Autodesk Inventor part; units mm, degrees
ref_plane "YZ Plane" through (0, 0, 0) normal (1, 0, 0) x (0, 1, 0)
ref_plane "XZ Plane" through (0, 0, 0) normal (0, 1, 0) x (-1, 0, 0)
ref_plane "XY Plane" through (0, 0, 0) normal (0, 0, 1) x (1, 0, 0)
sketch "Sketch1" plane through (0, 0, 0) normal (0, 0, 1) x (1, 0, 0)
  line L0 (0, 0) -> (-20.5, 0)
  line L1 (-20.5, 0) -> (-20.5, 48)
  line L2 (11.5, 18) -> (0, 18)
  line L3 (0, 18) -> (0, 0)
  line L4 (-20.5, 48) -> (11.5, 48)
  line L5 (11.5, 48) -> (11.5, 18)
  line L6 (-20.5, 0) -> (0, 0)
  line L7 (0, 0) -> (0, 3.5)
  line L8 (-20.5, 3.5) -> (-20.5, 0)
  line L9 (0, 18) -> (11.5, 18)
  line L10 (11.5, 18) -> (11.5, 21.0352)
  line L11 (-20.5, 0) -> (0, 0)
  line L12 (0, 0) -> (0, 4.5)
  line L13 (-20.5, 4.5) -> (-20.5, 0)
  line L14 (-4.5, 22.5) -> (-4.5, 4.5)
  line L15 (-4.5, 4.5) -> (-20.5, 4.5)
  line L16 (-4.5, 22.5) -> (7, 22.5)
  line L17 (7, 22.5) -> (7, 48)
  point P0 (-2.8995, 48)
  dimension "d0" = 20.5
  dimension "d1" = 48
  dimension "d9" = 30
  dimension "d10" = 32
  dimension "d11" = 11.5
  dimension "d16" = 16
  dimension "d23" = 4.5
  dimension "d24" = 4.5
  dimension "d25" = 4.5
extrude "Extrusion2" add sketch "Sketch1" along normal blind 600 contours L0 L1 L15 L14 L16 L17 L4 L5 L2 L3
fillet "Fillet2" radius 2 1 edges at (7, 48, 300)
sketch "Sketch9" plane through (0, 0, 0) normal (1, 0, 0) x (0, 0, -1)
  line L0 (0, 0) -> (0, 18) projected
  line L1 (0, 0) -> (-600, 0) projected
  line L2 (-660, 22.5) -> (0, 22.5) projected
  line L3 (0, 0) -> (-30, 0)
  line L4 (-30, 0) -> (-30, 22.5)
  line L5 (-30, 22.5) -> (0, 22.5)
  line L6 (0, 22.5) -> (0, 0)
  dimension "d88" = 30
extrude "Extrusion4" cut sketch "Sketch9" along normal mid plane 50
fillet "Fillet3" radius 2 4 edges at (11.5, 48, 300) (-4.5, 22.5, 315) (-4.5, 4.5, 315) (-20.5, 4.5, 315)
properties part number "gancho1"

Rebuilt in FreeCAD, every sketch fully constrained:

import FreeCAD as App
import Part
import Sketcher


def edges_at(feature, points):
    """Names of the edges that pass closest to the given points."""
    edges = feature.Shape.Edges
    near = lambda p: min(range(len(edges)), key=lambda i: edges[i].distToShape(Part.Vertex(*p))[0])
    return sorted({f"Edge{near(p) + 1}" for p in points})

doc = App.newDocument("Part")
body = doc.addObject("PartDesign::Body", "Body")

# Sketch on XY plane
sketch1 = doc.addObject("Sketcher::SketchObject", "Sketch")
body.addObject(sketch1)
sketch1.AttachmentSupport = (doc.XY_Plane, [""])
sketch1.MapMode = "FlatFace"
sketch1.addGeometry(Part.LineSegment(App.Vector(-20.5, 0, 0), App.Vector(0, 0, 0)), False)
sketch1.addGeometry(Part.LineSegment(App.Vector(0, 0, 0), App.Vector(0, 18, 0)), False)
sketch1.addGeometry(Part.LineSegment(App.Vector(0, 18, 0), App.Vector(11.5, 18, 0)), False)
sketch1.addGeometry(Part.LineSegment(App.Vector(11.5, 18, 0), App.Vector(11.5, 48, 0)), False)
sketch1.addGeometry(Part.LineSegment(App.Vector(11.5, 48, 0), App.Vector(7, 48, 0)), False)
sketch1.addGeometry(Part.LineSegment(App.Vector(7, 48, 0), App.Vector(7, 22.5, 0)), False)
sketch1.addGeometry(Part.LineSegment(App.Vector(7, 22.5, 0), App.Vector(-4.5, 22.5, 0)), False)
sketch1.addGeometry(Part.LineSegment(App.Vector(-4.5, 22.5, 0), App.Vector(-4.5, 4.5, 0)), False)
sketch1.addGeometry(Part.LineSegment(App.Vector(-4.5, 4.5, 0), App.Vector(-20.5, 4.5, 0)), False)
sketch1.addGeometry(Part.LineSegment(App.Vector(-20.5, 4.5, 0), App.Vector(-20.5, 0, 0)), False)
sketch1.addConstraint(Sketcher.Constraint("Coincident", 0, 2, 1, 1))
sketch1.addConstraint(Sketcher.Constraint("Coincident", 1, 2, 2, 1))
sketch1.addConstraint(Sketcher.Constraint("Coincident", 2, 2, 3, 1))
sketch1.addConstraint(Sketcher.Constraint("Coincident", 3, 2, 4, 1))
sketch1.addConstraint(Sketcher.Constraint("Coincident", 4, 2, 5, 1))
sketch1.addConstraint(Sketcher.Constraint("Coincident", 5, 2, 6, 1))
sketch1.addConstraint(Sketcher.Constraint("Coincident", 6, 2, 7, 1))
sketch1.addConstraint(Sketcher.Constraint("Coincident", 7, 2, 8, 1))
sketch1.addConstraint(Sketcher.Constraint("Coincident", 8, 2, 9, 1))
sketch1.addConstraint(Sketcher.Constraint("Coincident", 9, 2, 0, 1))
sketch1.addConstraint(Sketcher.Constraint("Horizontal", 0))
sketch1.addConstraint(Sketcher.Constraint("Vertical", 1))
sketch1.addConstraint(Sketcher.Constraint("Horizontal", 2))
sketch1.addConstraint(Sketcher.Constraint("Vertical", 3))
sketch1.addConstraint(Sketcher.Constraint("Horizontal", 4))
sketch1.addConstraint(Sketcher.Constraint("Vertical", 5))
sketch1.addConstraint(Sketcher.Constraint("Horizontal", 6))
sketch1.addConstraint(Sketcher.Constraint("Vertical", 7))
sketch1.addConstraint(Sketcher.Constraint("Horizontal", 8))
sketch1.addConstraint(Sketcher.Constraint("Vertical", 9))
sketch1.addConstraint(Sketcher.Constraint("Coincident", 0, 2, -1, 1))
sketch1.addConstraint(Sketcher.Constraint("Equal", 2, 6))
sketch1.addConstraint(Sketcher.Constraint("Equal", 1, 7))
sketch1.addConstraint(Sketcher.Constraint("Equal", 4, 9))
sketch1.addConstraint(Sketcher.Constraint("DistanceX", 8, 2, 8, 1, 16.0))
sketch1.addConstraint(Sketcher.Constraint("DistanceY", 3, 1, 3, 2, 30.0))
sketch1.addConstraint(Sketcher.Constraint("DistanceX", 0, 1, 0, 2, 20.5))
sketch1.addConstraint(Sketcher.Constraint("DistanceX", 2, 1, 2, 2, 11.5))
sketch1.addConstraint(Sketcher.Constraint("DistanceY", -1, 1, 3, 2, 48.0))
pad1 = doc.addObject("PartDesign::Pad", "Pad")
body.addObject(pad1)
pad1.Profile = sketch1
pad1.Length = 600
doc.recompute()

fillet = doc.addObject("PartDesign::Fillet", "Fillet")
body.addObject(fillet)
fillet.Base = (pad1, edges_at(pad1, [(7, 48, 300)]))
fillet.Radius = 2

# Sketch on YZ plane
sketch2 = doc.addObject("Sketcher::SketchObject", "Sketch001")
body.addObject(sketch2)
sketch2.AttachmentSupport = (doc.YZ_Plane, [""])
sketch2.MapMode = "FlatFace"
sketch2.addGeometry(Part.LineSegment(App.Vector(0, 30, 0), App.Vector(0, 0, 0)), False)
sketch2.addGeometry(Part.LineSegment(App.Vector(0, 0, 0), App.Vector(22, 0, 0)), False)
sketch2.addGeometry(Part.LineSegment(App.Vector(22, 0, 0), App.Vector(22, 30, 0)), False)
sketch2.addGeometry(Part.LineSegment(App.Vector(22, 30, 0), App.Vector(0, 30, 0)), False)
sketch2.addConstraint(Sketcher.Constraint("Coincident", 0, 2, 1, 1))
sketch2.addConstraint(Sketcher.Constraint("Coincident", 1, 2, 2, 1))
sketch2.addConstraint(Sketcher.Constraint("Coincident", 2, 2, 3, 1))
sketch2.addConstraint(Sketcher.Constraint("Coincident", 3, 2, 0, 1))
sketch2.addConstraint(Sketcher.Constraint("Vertical", 0))
sketch2.addConstraint(Sketcher.Constraint("Horizontal", 1))
sketch2.addConstraint(Sketcher.Constraint("Vertical", 2))
sketch2.addConstraint(Sketcher.Constraint("Horizontal", 3))
sketch2.addConstraint(Sketcher.Constraint("Coincident", 0, 2, -1, 1))
sketch2.addConstraint(Sketcher.Constraint("DistanceY", 0, 2, 0, 1, 30.0))
sketch2.addConstraint(Sketcher.Constraint("DistanceX", 1, 1, 1, 2, 22.5))
pocket1 = doc.addObject("PartDesign::Pocket", "Pocket")
body.addObject(pocket1)
pocket1.Profile = sketch2
pocket1.Length = 50
pocket1.Midplane = True
doc.recompute()

fillet2 = doc.addObject("PartDesign::Fillet", "Fillet001")
body.addObject(fillet2)
fillet2.Base = (pocket1, edges_at(pocket1, [
    (11.5, 48, 300),
    (-4.5, 22.5, 315),
    (-4.5, 4.5, 315),
    (-20.5, 4.5, 315),
]))
fillet2.Radius = 2

doc.recompute()
